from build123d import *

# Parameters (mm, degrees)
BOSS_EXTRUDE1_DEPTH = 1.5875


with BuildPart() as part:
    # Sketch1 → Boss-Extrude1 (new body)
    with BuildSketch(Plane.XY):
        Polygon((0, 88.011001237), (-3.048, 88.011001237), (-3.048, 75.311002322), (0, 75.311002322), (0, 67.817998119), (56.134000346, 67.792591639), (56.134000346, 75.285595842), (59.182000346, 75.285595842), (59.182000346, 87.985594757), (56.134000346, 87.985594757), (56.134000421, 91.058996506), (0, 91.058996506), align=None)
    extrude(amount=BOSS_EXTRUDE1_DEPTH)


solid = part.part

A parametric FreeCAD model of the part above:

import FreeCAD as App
import Part
import Sketcher
from FreeCAD import Vector
Q = App.Units.Quantity


def add_polygon(sketch, points):
    """Adds a closed chain of lines whose ends are joined by coincident constraints."""
    first, n = sketch.GeometryCount, len(points)
    for a, b in zip(points, points[1:] + points[:1]):
        sketch.addGeometry(Part.LineSegment(App.Vector(*a, 0), App.Vector(*b, 0)), False)
    for i in range(n):
        sketch.addConstraint(Sketcher.Constraint("Coincident", first + i, 2, first + (i + 1) % n, 1))

doc = App.newDocument("Part")
params = doc.addObject("Spreadsheet::Sheet", "Params")
for row, (alias, value) in enumerate([
    ("sketch1_height", "0.5 in"),
    ("sketch1_width", "0.12 in"),
    ("sketch1_width2", "2.21 in"),
    ("sketch1_height2", "0.1199998 in"),
    ("sketch1_height3", "0.2950002 in"),
    ("pad1_length", "0.0625 in"),
], start=1):
    params.set(f"A{row}", alias)
    params.set(f"B{row}", "=" + value)
    params.setAlias(f"B{row}", alias)

body = doc.addObject("PartDesign::Body", "Body")

sketch1 = body.newObject("Sketcher::SketchObject", "Sketch")
sketch1.AttachmentSupport = (doc.getObject("XY_Plane"), [""])
sketch1.MapMode = "FlatFace"
add_polygon(sketch1, [(0, 88.011001), (-3.048, 88.011001), (-3.048, 75.311002), (0, 75.311002), (0, 67.817998), (56.134, 67.792592), (56.134, 75.285596), (59.182, 75.285596), (59.182, 87.985595), (56.134, 87.985595), (56.134, 91.058997), (0, 91.058997)])
sketch1.addConstraint([
    Sketcher.Constraint("Horizontal", 0),
    Sketcher.Constraint("Vertical", 1),
    Sketcher.Constraint("Horizontal", 2),
    Sketcher.Constraint("Vertical", 3),
    Sketcher.Constraint("Vertical", 5),
    Sketcher.Constraint("Horizontal", 6),
    Sketcher.Constraint("Vertical", 7),
    Sketcher.Constraint("Horizontal", 8),
    Sketcher.Constraint("Vertical", 9),
    Sketcher.Constraint("Horizontal", 10),
    Sketcher.Constraint("Vertical", 11),
    Sketcher.Constraint("PointOnObject", 2, 2, -2),
    Sketcher.Constraint("PointOnObject", 10, 2, -2),
    Sketcher.Constraint("Vertical", 5, 2, 8, 2),
    Sketcher.Constraint("Equal", 2, 6),
    Sketcher.Constraint("Equal", 3, 5),
    Sketcher.Constraint("Equal", 1, 7),
    Sketcher.Constraint("DistanceY", 1, 2, 1, 1, Q("0.5 in")),
    Sketcher.Constraint("DistanceX", 0, 2, 0, 1, Q("0.12 in")),
    Sketcher.Constraint("DistanceX", 10, 2, 10, 1, Q("2.21 in")),
    Sketcher.Constraint("DistanceY", 11, 2, 11, 1, Q("0.1199998 in")),
    Sketcher.Constraint("DistanceY", 3, 2, 3, 1, Q("0.2950002 in")),
    Sketcher.Constraint("DistanceY", 9, 1, 9, 2, Q("0.1210001 in")),
    Sketcher.Constraint("DistanceY", -1, 1, 3, 2, Q("2.6699999 in")),
])
sketch1.setExpression("Constraints[29]", "Params.sketch1_height")
sketch1.setExpression("Constraints[30]", "Params.sketch1_width")
sketch1.setExpression("Constraints[31]", "Params.sketch1_width2")
sketch1.setExpression("Constraints[32]", "Params.sketch1_height2")
sketch1.setExpression("Constraints[33]", "Params.sketch1_height3")
pad1 = body.newObject("PartDesign::Pad", "Pad")
pad1.Profile = sketch1
pad1.setExpression("Length", "Params.pad1_length")

doc.recompute()
